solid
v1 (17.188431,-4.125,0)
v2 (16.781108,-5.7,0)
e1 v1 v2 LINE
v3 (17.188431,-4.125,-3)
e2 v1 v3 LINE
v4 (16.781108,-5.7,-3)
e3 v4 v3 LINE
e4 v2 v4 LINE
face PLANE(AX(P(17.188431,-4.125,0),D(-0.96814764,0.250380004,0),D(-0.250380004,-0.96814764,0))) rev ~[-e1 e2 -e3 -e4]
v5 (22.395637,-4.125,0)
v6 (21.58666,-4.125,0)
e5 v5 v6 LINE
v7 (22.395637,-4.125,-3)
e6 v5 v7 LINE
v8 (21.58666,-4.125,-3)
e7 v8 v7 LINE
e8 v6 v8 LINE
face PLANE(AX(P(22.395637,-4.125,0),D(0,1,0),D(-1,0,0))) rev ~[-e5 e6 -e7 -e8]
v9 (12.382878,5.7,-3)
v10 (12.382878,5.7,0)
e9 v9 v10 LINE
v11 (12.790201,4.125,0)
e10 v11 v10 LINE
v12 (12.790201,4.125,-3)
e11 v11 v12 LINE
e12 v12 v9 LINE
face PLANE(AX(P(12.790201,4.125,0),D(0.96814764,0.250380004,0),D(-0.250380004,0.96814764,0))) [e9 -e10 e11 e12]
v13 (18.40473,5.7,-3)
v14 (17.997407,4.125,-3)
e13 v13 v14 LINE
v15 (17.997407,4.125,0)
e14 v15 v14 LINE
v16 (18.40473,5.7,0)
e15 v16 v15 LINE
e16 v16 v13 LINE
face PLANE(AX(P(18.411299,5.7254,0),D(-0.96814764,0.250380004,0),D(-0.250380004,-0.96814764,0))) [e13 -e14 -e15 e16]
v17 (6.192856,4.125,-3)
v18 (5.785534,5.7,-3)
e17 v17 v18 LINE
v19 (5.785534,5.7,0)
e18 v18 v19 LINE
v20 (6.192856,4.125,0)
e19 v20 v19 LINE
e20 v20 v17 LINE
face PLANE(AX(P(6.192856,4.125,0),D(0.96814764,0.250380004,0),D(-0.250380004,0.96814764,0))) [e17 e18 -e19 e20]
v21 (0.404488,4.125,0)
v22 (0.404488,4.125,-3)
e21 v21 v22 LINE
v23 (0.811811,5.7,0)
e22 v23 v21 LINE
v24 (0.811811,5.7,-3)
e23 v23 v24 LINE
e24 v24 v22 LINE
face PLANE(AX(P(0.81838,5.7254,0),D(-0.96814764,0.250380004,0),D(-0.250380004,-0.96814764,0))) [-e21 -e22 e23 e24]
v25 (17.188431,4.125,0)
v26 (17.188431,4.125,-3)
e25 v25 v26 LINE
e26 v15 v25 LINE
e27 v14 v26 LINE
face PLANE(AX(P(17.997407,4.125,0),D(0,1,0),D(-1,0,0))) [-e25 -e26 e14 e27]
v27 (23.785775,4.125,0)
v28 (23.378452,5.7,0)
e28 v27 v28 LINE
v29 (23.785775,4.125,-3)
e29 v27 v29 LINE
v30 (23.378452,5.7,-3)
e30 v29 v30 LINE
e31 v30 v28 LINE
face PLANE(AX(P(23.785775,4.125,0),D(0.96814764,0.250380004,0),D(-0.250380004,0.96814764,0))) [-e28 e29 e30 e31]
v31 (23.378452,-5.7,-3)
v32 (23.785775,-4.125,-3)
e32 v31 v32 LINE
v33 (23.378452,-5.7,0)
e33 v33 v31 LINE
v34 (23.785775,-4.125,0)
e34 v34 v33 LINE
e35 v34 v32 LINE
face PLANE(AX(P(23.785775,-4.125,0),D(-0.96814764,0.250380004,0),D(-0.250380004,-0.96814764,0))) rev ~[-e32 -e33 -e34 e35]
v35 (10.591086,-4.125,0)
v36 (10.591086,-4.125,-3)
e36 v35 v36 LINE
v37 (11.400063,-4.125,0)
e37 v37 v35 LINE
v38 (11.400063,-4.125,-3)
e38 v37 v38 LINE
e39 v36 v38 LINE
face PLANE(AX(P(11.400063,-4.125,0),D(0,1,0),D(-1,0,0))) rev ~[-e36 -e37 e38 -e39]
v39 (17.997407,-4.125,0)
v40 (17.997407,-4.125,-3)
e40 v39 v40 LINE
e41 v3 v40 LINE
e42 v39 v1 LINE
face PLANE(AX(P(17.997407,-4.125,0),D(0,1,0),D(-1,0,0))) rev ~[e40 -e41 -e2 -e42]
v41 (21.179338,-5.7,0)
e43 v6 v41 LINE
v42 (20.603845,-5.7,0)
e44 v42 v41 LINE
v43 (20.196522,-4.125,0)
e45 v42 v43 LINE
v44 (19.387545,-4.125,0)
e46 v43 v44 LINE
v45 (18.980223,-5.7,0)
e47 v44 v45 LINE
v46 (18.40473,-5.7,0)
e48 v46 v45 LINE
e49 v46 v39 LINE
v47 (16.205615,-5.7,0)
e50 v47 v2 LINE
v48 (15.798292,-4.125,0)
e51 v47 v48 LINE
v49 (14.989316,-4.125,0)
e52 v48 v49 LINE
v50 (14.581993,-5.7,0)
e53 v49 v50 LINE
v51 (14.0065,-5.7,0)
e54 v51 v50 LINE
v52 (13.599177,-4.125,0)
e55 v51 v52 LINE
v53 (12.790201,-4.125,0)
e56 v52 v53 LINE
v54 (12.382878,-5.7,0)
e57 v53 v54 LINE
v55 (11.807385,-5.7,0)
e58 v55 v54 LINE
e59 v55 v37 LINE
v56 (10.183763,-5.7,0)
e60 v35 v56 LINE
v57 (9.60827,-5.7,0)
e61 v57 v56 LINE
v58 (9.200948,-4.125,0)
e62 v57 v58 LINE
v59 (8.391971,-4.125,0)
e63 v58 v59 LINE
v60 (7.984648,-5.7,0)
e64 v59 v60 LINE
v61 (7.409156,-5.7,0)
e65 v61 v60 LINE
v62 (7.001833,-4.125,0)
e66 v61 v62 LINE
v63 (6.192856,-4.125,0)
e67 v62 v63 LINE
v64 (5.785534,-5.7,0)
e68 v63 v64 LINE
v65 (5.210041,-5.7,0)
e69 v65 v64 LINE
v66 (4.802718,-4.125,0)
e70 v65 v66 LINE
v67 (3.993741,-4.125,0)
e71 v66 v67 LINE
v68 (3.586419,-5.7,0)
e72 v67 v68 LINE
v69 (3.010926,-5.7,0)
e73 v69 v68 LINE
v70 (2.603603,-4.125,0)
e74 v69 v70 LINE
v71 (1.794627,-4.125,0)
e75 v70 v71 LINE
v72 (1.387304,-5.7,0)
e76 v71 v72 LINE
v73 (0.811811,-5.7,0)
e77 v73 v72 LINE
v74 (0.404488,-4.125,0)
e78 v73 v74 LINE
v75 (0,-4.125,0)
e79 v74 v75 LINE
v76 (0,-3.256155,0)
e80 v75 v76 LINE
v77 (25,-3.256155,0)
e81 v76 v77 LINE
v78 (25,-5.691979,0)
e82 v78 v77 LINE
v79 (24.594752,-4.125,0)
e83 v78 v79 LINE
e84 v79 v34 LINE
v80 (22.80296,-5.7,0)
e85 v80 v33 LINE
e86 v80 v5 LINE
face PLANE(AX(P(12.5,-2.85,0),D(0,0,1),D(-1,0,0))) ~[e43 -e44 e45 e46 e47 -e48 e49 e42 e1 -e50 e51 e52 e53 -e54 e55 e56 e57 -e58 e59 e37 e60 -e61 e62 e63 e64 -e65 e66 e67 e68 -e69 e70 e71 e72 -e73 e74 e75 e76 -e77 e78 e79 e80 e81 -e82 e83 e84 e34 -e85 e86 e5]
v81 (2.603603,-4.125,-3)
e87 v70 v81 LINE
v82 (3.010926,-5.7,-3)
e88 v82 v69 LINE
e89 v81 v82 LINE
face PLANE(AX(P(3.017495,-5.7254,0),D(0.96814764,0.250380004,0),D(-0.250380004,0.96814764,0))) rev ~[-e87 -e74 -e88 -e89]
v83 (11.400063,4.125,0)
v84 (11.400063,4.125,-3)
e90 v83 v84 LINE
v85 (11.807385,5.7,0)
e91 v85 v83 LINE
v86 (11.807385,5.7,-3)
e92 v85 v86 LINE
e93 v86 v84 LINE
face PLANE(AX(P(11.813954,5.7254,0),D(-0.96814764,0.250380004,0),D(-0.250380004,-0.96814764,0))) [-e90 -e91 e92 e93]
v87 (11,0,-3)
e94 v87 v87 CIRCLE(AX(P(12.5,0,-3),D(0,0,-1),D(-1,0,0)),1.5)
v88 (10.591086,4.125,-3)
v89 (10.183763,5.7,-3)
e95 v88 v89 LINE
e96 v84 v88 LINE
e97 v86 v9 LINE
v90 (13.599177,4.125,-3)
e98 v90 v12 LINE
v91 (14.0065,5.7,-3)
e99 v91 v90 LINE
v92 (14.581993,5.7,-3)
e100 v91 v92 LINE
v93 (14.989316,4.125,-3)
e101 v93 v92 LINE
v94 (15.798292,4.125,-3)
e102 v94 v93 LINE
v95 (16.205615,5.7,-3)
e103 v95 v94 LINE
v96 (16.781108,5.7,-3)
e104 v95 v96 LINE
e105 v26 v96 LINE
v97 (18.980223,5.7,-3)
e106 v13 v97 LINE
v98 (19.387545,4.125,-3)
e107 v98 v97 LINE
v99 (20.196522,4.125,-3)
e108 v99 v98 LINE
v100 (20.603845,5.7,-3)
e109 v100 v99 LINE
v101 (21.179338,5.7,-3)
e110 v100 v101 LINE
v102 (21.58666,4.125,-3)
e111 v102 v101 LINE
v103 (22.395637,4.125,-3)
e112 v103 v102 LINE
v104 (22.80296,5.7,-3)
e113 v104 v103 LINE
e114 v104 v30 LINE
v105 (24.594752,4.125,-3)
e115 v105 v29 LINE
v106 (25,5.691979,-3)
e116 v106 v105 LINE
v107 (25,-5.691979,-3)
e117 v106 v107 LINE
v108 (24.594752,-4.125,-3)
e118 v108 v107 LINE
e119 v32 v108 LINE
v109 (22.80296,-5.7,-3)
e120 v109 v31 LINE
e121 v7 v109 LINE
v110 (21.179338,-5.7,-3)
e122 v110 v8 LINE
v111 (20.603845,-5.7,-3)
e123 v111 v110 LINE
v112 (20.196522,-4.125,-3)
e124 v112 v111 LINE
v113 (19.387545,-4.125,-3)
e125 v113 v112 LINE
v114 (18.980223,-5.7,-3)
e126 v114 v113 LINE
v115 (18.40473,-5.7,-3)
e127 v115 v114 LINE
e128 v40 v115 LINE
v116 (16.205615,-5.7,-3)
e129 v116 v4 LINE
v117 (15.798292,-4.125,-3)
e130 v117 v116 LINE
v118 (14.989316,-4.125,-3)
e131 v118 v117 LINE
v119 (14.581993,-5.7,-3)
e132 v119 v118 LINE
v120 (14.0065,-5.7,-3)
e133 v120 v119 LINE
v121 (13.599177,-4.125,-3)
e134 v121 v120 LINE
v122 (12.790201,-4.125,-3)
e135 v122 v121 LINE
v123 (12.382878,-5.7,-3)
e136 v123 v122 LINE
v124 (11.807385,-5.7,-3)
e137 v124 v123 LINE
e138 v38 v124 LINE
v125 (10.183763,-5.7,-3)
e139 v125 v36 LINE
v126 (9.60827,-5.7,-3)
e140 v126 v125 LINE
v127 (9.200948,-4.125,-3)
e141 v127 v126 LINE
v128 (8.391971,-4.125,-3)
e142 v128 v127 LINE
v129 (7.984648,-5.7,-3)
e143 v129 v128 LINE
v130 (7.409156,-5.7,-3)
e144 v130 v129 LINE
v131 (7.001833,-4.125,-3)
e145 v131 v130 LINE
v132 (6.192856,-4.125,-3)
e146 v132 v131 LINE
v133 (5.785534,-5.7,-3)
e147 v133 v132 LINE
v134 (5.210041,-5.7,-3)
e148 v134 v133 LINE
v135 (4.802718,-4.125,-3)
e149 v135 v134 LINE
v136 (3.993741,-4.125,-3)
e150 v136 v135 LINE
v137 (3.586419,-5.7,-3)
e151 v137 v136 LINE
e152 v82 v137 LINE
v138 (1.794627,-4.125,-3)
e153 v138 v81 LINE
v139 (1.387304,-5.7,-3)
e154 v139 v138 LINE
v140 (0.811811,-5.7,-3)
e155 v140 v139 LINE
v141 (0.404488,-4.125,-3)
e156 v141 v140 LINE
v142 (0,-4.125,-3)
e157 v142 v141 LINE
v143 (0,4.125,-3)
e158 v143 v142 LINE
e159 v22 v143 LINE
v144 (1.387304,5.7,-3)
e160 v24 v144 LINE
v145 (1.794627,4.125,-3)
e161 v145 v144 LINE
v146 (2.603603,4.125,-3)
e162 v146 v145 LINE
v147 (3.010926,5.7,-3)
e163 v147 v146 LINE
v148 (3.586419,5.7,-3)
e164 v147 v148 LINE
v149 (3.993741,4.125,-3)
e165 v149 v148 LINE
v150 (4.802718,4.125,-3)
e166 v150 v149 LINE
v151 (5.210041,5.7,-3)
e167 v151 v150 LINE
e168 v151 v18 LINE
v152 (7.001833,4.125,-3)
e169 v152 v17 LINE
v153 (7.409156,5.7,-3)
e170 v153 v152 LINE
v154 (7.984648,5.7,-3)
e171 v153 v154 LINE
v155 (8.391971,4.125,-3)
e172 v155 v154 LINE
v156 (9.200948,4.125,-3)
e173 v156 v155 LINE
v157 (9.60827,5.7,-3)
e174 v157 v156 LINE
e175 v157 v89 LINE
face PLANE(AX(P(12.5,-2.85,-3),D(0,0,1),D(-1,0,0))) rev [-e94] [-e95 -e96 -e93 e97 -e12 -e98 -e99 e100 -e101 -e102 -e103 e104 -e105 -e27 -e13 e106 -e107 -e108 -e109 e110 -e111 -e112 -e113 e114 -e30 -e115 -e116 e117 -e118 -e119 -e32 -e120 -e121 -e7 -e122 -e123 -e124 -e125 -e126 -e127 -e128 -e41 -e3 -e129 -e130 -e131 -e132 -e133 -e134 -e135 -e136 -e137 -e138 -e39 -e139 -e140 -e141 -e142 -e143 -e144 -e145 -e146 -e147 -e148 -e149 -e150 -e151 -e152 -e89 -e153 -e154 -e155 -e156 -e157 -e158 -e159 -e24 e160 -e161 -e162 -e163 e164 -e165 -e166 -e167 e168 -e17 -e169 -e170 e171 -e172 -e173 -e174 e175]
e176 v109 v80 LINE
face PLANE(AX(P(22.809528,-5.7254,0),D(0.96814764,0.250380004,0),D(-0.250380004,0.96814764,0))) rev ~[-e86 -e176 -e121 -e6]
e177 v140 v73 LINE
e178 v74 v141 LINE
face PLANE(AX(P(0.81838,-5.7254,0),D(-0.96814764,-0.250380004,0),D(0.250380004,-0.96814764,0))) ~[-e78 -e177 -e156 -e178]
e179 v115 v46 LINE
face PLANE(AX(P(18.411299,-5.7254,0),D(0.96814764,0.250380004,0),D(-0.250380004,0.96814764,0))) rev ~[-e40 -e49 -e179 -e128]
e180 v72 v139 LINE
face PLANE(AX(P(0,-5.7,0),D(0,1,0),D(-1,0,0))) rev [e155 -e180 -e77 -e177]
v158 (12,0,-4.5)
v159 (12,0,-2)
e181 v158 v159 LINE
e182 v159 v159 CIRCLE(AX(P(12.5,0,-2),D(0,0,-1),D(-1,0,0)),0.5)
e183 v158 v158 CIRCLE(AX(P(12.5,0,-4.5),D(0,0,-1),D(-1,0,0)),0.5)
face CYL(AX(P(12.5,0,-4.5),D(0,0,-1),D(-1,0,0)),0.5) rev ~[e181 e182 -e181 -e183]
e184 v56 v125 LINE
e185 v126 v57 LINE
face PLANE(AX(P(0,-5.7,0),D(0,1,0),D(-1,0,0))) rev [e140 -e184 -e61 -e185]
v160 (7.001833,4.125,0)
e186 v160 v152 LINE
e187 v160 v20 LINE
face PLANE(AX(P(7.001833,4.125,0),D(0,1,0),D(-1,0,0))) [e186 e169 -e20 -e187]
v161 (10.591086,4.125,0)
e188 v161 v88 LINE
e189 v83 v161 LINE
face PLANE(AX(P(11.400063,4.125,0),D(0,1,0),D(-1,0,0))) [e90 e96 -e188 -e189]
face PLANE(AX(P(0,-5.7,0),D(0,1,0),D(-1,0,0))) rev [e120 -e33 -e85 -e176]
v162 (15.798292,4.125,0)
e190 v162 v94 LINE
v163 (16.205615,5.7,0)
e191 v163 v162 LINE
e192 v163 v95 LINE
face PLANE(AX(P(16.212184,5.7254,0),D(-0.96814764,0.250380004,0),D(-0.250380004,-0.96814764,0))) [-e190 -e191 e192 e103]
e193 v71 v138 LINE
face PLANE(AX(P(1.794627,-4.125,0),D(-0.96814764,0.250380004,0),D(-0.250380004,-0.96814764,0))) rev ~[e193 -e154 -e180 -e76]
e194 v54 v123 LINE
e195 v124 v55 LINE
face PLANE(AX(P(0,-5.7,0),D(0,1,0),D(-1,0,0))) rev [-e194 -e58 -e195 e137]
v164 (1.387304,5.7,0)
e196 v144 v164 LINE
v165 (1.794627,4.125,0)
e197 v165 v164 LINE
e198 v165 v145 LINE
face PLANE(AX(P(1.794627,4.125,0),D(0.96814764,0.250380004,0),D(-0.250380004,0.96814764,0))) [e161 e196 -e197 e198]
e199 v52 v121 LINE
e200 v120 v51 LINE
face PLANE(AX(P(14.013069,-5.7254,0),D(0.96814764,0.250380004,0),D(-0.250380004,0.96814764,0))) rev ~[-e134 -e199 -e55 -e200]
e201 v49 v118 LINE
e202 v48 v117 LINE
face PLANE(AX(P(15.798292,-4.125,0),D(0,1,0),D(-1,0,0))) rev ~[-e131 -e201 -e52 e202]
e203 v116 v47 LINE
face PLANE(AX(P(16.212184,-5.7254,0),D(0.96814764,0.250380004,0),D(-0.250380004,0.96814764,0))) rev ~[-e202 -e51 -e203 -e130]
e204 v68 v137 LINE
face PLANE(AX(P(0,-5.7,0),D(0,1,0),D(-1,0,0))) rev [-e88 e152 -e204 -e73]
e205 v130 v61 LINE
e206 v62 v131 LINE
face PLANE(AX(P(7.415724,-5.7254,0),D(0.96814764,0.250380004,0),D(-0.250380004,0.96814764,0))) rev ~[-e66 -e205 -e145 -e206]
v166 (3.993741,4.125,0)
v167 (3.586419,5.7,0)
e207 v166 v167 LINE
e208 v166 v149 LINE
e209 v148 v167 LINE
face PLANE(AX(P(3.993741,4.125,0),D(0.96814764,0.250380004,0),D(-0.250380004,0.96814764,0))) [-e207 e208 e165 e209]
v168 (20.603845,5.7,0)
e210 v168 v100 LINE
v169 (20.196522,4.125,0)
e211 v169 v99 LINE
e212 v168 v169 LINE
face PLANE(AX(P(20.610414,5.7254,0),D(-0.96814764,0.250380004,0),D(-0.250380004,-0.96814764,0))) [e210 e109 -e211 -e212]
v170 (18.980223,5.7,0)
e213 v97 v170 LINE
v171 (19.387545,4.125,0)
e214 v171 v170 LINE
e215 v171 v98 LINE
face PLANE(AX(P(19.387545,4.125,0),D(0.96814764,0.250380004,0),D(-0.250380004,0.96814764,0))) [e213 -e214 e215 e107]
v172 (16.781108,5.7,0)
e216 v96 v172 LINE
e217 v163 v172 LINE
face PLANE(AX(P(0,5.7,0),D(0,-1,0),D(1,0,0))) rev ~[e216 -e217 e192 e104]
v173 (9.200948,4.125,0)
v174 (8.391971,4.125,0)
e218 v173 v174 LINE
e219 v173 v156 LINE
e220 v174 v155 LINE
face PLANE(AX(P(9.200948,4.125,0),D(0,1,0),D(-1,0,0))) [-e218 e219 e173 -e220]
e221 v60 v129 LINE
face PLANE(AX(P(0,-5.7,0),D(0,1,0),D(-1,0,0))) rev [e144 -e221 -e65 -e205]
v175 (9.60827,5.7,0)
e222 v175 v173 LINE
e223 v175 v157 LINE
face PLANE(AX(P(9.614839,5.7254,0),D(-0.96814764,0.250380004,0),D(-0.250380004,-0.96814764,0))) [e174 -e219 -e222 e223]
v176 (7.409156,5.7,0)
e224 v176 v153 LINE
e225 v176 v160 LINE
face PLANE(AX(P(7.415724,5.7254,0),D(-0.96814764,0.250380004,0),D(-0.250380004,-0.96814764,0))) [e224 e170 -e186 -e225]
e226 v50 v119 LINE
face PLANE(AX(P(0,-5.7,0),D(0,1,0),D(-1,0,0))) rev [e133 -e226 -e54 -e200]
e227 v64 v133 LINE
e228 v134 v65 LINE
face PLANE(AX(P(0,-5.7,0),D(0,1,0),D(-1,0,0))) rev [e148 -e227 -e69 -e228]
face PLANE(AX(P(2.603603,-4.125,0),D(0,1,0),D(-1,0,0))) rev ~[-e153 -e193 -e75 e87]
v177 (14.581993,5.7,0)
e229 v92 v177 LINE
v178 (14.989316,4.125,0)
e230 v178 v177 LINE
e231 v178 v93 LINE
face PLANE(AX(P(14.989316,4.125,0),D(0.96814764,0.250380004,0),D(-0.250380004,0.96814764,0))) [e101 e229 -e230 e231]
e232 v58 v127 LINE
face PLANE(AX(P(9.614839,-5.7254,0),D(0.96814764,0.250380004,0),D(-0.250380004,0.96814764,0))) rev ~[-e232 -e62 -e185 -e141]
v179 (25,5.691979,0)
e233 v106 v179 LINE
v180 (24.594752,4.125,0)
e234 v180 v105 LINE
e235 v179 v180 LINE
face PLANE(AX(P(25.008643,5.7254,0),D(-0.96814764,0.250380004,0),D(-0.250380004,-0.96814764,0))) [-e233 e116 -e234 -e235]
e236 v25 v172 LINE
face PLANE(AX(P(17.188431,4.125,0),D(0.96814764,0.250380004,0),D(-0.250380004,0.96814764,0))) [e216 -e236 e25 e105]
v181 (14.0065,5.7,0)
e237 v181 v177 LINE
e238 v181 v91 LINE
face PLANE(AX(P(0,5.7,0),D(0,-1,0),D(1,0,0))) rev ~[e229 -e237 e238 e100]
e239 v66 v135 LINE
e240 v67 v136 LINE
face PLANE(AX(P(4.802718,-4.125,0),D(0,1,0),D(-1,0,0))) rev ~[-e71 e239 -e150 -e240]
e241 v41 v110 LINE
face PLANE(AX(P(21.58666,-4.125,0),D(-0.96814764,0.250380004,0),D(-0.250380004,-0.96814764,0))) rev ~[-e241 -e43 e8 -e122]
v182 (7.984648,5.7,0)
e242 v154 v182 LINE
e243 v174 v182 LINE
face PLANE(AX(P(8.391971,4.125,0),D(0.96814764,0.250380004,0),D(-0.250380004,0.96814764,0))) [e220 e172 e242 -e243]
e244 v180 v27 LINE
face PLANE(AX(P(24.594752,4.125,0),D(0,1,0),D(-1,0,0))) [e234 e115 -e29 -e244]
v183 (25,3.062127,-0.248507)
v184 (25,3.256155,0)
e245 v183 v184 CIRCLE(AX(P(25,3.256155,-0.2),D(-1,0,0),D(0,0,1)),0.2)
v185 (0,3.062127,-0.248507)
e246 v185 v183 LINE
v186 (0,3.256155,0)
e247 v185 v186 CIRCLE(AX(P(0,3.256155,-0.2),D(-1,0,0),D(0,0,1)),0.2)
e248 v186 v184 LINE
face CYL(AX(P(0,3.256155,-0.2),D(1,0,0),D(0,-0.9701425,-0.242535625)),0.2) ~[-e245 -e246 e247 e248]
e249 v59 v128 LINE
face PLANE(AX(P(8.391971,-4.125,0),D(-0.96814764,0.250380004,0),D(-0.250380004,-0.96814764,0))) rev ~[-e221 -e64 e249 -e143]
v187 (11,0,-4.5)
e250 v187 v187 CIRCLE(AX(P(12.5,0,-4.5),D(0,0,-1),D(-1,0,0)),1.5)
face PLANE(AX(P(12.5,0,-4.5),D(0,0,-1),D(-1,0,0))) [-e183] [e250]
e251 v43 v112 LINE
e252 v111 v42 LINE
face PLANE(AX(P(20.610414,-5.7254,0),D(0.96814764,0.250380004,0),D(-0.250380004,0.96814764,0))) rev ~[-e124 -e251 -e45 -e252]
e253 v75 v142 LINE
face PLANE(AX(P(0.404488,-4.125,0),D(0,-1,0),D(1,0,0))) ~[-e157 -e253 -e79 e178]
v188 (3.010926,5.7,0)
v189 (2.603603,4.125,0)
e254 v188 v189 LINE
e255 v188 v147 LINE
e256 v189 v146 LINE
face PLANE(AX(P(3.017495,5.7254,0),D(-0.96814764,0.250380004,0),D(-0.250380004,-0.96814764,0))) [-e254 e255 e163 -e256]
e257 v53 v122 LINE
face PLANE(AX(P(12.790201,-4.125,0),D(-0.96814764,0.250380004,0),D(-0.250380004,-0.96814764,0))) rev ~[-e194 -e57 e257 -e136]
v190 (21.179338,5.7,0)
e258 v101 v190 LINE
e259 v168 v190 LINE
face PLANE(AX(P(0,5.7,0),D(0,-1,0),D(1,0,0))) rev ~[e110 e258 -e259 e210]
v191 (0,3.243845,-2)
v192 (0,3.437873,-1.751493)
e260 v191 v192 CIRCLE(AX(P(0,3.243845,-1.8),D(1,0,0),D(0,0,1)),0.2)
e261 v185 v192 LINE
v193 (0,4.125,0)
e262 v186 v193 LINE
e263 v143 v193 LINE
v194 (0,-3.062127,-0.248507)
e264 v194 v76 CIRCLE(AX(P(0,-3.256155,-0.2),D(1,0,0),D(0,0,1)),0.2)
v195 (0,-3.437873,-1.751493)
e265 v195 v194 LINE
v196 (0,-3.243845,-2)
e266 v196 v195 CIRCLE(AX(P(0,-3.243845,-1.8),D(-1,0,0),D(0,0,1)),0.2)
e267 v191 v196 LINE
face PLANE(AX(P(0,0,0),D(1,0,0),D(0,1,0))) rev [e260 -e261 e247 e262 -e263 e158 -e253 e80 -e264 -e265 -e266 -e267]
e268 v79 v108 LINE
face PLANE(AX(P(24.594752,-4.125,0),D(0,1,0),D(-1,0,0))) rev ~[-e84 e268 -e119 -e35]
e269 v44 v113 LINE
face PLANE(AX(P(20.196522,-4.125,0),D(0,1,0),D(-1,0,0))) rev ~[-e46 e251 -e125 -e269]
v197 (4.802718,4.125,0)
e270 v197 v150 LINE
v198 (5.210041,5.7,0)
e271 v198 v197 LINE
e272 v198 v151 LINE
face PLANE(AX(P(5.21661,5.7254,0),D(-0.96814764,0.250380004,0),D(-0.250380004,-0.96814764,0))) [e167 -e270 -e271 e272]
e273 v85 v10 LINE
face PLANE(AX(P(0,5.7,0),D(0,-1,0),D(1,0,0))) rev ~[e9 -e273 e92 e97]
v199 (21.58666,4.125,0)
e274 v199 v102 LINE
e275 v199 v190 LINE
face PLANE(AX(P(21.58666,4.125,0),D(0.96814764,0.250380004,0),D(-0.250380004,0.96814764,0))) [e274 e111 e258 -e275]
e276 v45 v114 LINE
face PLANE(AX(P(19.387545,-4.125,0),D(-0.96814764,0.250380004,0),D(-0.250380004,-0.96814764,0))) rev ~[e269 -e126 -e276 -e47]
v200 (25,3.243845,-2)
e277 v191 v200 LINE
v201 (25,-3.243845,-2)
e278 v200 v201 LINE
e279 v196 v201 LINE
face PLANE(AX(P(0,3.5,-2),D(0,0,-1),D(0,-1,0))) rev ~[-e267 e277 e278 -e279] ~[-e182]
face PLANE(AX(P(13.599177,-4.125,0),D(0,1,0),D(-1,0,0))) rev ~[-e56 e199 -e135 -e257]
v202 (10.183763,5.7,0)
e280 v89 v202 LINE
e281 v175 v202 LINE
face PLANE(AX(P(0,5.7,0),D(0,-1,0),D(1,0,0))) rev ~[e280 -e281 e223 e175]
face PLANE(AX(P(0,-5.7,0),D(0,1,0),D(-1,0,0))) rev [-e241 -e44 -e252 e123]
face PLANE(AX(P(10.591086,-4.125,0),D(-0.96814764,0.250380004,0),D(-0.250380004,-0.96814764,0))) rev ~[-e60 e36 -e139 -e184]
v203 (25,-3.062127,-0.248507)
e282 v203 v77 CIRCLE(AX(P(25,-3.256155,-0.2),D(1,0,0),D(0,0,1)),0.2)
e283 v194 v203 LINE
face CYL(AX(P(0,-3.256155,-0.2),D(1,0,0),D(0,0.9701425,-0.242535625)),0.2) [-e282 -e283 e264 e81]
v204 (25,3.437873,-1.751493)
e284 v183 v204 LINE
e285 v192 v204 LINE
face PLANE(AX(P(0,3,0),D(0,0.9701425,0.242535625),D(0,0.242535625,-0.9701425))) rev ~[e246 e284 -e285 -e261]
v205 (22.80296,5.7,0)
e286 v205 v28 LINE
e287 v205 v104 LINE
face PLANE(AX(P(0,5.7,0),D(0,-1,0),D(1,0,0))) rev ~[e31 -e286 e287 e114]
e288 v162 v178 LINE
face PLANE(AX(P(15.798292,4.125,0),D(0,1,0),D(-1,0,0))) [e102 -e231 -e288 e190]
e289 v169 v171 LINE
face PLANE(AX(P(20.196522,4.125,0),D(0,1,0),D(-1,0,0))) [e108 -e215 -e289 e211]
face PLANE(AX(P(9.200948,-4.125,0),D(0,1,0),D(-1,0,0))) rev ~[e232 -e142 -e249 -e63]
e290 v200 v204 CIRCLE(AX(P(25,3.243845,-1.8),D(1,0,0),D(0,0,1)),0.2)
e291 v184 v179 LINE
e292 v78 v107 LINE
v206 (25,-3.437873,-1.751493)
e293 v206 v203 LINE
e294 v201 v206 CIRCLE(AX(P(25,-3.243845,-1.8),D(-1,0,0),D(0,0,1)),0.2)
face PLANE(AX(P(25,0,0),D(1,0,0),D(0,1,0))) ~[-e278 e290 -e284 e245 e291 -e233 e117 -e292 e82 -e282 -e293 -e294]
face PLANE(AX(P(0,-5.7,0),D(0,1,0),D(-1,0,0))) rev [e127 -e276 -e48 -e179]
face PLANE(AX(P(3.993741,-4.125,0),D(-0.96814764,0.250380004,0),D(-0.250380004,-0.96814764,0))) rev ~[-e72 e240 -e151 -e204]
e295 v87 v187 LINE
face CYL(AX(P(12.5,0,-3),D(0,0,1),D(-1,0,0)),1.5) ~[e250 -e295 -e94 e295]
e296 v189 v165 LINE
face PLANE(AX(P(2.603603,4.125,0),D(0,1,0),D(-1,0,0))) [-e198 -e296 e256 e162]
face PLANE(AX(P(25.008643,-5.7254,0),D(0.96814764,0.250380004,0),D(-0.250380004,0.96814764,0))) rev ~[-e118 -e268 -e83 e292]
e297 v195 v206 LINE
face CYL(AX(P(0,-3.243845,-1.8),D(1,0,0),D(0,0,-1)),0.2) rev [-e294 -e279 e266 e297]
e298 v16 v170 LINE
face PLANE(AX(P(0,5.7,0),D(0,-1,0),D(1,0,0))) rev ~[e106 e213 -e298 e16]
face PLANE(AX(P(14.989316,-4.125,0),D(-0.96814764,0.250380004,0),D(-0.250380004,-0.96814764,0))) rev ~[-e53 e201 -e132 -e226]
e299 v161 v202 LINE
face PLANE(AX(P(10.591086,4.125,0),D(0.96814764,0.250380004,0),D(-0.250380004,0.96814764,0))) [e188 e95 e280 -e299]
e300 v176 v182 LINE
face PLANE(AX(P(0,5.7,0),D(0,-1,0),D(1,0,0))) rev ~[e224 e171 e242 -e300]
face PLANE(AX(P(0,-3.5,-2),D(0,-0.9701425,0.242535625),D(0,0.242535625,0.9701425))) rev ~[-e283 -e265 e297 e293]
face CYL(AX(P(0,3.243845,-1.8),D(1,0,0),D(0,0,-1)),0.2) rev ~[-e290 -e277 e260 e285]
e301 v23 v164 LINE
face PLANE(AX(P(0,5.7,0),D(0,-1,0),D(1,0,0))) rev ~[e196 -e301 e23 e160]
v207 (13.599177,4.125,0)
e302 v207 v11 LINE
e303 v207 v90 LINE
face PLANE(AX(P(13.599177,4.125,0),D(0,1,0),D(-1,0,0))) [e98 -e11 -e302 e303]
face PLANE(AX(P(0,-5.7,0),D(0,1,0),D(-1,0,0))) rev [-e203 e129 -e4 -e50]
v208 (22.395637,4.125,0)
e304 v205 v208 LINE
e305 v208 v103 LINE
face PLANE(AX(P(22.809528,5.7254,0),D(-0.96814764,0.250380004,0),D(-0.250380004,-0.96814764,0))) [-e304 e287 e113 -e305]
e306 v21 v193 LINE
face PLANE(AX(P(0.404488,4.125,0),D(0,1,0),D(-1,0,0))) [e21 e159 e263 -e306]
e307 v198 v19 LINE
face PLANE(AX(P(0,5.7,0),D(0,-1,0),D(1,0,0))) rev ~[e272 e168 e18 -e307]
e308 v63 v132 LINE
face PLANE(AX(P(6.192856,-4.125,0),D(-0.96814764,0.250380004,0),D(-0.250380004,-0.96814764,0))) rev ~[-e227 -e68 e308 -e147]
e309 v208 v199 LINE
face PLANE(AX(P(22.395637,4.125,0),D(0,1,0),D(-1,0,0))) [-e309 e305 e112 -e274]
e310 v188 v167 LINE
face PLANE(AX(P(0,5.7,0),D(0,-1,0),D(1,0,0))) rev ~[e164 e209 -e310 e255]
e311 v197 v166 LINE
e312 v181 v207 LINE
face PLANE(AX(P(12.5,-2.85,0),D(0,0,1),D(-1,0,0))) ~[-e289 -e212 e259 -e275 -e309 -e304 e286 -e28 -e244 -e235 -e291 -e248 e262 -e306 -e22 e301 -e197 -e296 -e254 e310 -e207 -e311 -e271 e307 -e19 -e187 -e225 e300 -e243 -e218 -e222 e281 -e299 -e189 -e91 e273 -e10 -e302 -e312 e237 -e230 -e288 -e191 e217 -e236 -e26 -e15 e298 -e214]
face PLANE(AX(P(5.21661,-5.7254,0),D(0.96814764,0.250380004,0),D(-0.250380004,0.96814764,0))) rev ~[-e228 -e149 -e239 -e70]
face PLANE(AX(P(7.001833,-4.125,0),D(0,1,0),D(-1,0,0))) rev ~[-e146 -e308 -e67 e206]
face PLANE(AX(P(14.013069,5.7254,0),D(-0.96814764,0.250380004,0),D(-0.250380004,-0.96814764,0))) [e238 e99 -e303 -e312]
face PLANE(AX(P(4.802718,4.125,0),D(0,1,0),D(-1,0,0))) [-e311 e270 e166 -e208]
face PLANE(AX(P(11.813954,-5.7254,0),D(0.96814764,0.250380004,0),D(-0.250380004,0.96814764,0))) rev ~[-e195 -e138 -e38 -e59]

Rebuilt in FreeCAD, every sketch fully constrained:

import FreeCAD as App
import Part
import Sketcher
from FreeCAD import Vector
Q = App.Units.Quantity


def edges_at(feature, points):
    """Names of the edges that pass closest to the given points."""
    edges = feature.Shape.Edges
    near = lambda p: min(range(len(edges)), key=lambda i: edges[i].distToShape(Part.Vertex(*p))[0])
    return sorted({f"Edge{near(p) + 1}" for p in points})

doc = App.newDocument("Part")
params = doc.addObject("Spreadsheet::Sheet", "Params")
for row, (alias, value) in enumerate([
    ("sketch1_width", "25 mm"),
    ("sketch1_height", "5.7 mm"),
    ("pad1_length", "3 mm"),
    ("linearpattern_pitch", "2.199115 mm"),
    ("sketch14_width", "6 mm"),
    ("sketch14_width2", "7 mm"),
    ("fillet_radius", "0.2 mm"),
    ("fillet2_radius", "0.2 mm"),
    ("fillet3_radius", "0.2 mm"),
    ("sketch15_diameter", "3 mm"),
    ("pad2_length", "1.5 mm"),
    ("sketch16_diameter", "1 mm"),
], start=1):
    params.set(f"A{row}", alias)
    params.set(f"B{row}", "=" + value)
    params.setAlias(f"B{row}", alias)

body = doc.addObject("PartDesign::Body", "Body")

# Sketch on XY plane
sketch1 = body.newObject("Sketcher::SketchObject", "Sketch")
sketch1.AttachmentSupport = (doc.getObject("XY_Plane"), [""])
sketch1.MapMode = "FlatFace"
sketch1.addGeometry([
    Part.LineSegment(Vector(0, 5.7, 0), Vector(0, 0, 0)),
    Part.LineSegment(Vector(0, 0, 0), Vector(25, 0, 0)),
    Part.LineSegment(Vector(25, 0, 0), Vector(25, 5.7, 0)),
    Part.LineSegment(Vector(25, 5.7, 0), Vector(0, 5.7, 0)),
], False)
sketch1.addConstraint([
    Sketcher.Constraint("Coincident", 0, 2, 1, 1),
    Sketcher.Constraint("Coincident", 1, 2, 2, 1),
    Sketcher.Constraint("Coincident", 2, 2, 3, 1),
    Sketcher.Constraint("Coincident", 3, 2, 0, 1),
    Sketcher.Constraint("Vertical", 0),
    Sketcher.Constraint("Horizontal", 1),
    Sketcher.Constraint("Vertical", 2),
    Sketcher.Constraint("Horizontal", 3),
    Sketcher.Constraint("Coincident", 0, 2, -1, 1),
    Sketcher.Constraint("DistanceX", 1, 1, 1, 2, Q("25 mm")),
    Sketcher.Constraint("DistanceY", 0, 2, 0, 1, Q("5.7 mm")),
])
sketch1.setExpression("Constraints[9]", "Params.sketch1_width")
sketch1.setExpression("Constraints[10]", "Params.sketch1_height")
pad1 = body.newObject("PartDesign::Pad", "Pad")
pad1.Profile = sketch1
pad1.setExpression("Length", "Params.pad1_length")
pad1.Reversed = True

# Sketch on XY plane
sketch2 = body.newObject("Sketcher::SketchObject", "Sketch001")
sketch2.AttachmentSupport = (doc.getObject("XY_Plane"), [""])
sketch2.MapMode = "FlatFace"
sketch2.addGeometry([
    Part.LineSegment(Vector(-0.404488, 4.125, 0), Vector(0.404488, 4.125, 0)),
    Part.LineSegment(Vector(0.404488, 4.125, 0), Vector(0.81838, 5.7254, 0)),
    Part.LineSegment(Vector(0.81838, 5.7254, 0), Vector(-0.81838, 5.7254, 0)),
    Part.LineSegment(Vector(-0.81838, 5.7254, 0), Vector(-0.404488, 4.125, 0)),
], False)
sketch2.addConstraint([
    Sketcher.Constraint("Coincident", 0, 2, 1, 1),
    Sketcher.Constraint("Coincident", 1, 2, 2, 1),
    Sketcher.Constraint("Coincident", 2, 2, 3, 1),
    Sketcher.Constraint("Coincident", 3, 2, 0, 1),
    Sketcher.Constraint("Horizontal", 0),
    Sketcher.Constraint("Horizontal", 2),
    Sketcher.Constraint("Equal", 1, 3),
    Sketcher.Constraint("Angle", 1, Q("75.5 deg")),
    Sketcher.Constraint("DistanceY", -1, 1, 0, 2, Q("4.125 mm")),
    Sketcher.Constraint("DistanceX", 2, 2, 2, 1, Q("1.63676 mm")),
    Sketcher.Constraint("DistanceY", -1, 1, 1, 2, Q("5.7254 mm")),
    Sketcher.Constraint("DistanceX", -1, 1, 0, 2, Q("0.404488 mm")),
])
pocket1 = body.newObject("PartDesign::Pocket", "Pocket")
pocket1.Profile = sketch2
pocket1.Type = "ThroughAll"
doc.recompute()

linearpattern = body.newObject("PartDesign::LinearPattern", "LinearPattern")
linearpattern.Originals = [pocket1]
linearpattern.Direction = (doc.getObject("X_Axis"), [""])
linearpattern.Mode = "offset"
linearpattern.setExpression("Offset", "Params.linearpattern_pitch")
linearpattern.Occurrences = 12
body.Tip = linearpattern
doc.recompute()

mirrored = body.newObject("PartDesign::Mirrored", "Mirrored")
mirrored.Originals = [pad1, pocket1]
mirrored.MirrorPlane = (doc.getObject("XZ_Plane"), [""])
body.Tip = mirrored

# Sketch on XY plane
sketch3 = body.newObject("Sketcher::SketchObject", "Sketch002")
sketch3.AttachmentSupport = (doc.getObject("XY_Plane"), [""])
sketch3.MapMode = "FlatFace"
sketch3.addGeometry([
    Part.LineSegment(Vector(2.603603, -4.125, 0), Vector(1.794627, -4.125, 0)),
    Part.LineSegment(Vector(1.794627, -4.125, 0), Vector(1.380735, -5.7254, 0)),
    Part.LineSegment(Vector(1.380735, -5.7254, 0), Vector(3.017495, -5.7254, 0)),
    Part.LineSegment(Vector(3.017495, -5.7254, 0), Vector(2.603603, -4.125, 0)),
], False)
sketch3.addConstraint([
    Sketcher.Constraint("Coincident", 0, 2, 1, 1),
    Sketcher.Constraint("Coincident", 1, 2, 2, 1),
    Sketcher.Constraint("Coincident", 2, 2, 3, 1),
    Sketcher.Constraint("Coincident", 3, 2, 0, 1),
    Sketcher.Constraint("Horizontal", 0),
    Sketcher.Constraint("Horizontal", 2),
    Sketcher.Constraint("Equal", 1, 3),
    Sketcher.Constraint("Angle", 1, Q("-104.5 deg")),
    Sketcher.Constraint("DistanceY", 0, 2, -1, 1, Q("4.125 mm")),
    Sketcher.Constraint("DistanceX", 2, 1, 2, 2, Q("1.63676 mm")),
    Sketcher.Constraint("DistanceY", 1, 2, -1, 1, Q("5.7254 mm")),
    Sketcher.Constraint("DistanceX", -1, 1, 0, 2, Q("1.794627 mm")),
])
pocket2 = body.newObject("PartDesign::Pocket", "Pocket001")
pocket2.Profile = sketch3
pocket2.Type = "ThroughAll"

# Sketch on XY plane
sketch4 = body.newObject("Sketcher::SketchObject", "Sketch003")
sketch4.AttachmentSupport = (doc.getObject("XY_Plane"), [""])
sketch4.MapMode = "FlatFace"
sketch4.addGeometry([
    Part.LineSegment(Vector(4.802718, -4.125, 0), Vector(3.993741, -4.125, 0)),
    Part.LineSegment(Vector(3.993741, -4.125, 0), Vector(3.57985, -5.7254, 0)),
    Part.LineSegment(Vector(3.57985, -5.7254, 0), Vector(5.21661, -5.7254, 0)),
    Part.LineSegment(Vector(5.21661, -5.7254, 0), Vector(4.802718, -4.125, 0)),
], False)
sketch4.addConstraint([
    Sketcher.Constraint("Coincident", 0, 2, 1, 1),
    Sketcher.Constraint("Coincident", 1, 2, 2, 1),
    Sketcher.Constraint("Coincident", 2, 2, 3, 1),
    Sketcher.Constraint("Coincident", 3, 2, 0, 1),
    Sketcher.Constraint("Horizontal", 0),
    Sketcher.Constraint("Horizontal", 2),
    Sketcher.Constraint("Equal", 1, 3),
    Sketcher.Constraint("Angle", 1, Q("-104.5 deg")),
    Sketcher.Constraint("DistanceY", 0, 2, -1, 1, Q("4.125 mm")),
    Sketcher.Constraint("DistanceX", 2, 1, 2, 2, Q("1.63676 mm")),
    Sketcher.Constraint("DistanceY", 1, 2, -1, 1, Q("5.7254 mm")),
    Sketcher.Constraint("DistanceX", -1, 1, 0, 2, Q("3.993741 mm")),
])
pocket3 = body.newObject("PartDesign::Pocket", "Pocket002")
pocket3.Profile = sketch4
pocket3.Type = "ThroughAll"

# Sketch on XY plane
sketch5 = body.newObject("Sketcher::SketchObject", "Sketch004")
sketch5.AttachmentSupport = (doc.getObject("XY_Plane"), [""])
sketch5.MapMode = "FlatFace"
sketch5.addGeometry([
    Part.LineSegment(Vector(7.001833, -4.125, 0), Vector(6.192856, -4.125, 0)),
    Part.LineSegment(Vector(6.192856, -4.125, 0), Vector(5.778965, -5.7254, 0)),
    Part.LineSegment(Vector(5.778965, -5.7254, 0), Vector(7.415724, -5.7254, 0)),
    Part.LineSegment(Vector(7.415724, -5.7254, 0), Vector(7.001833, -4.125, 0)),
], False)
sketch5.addConstraint([
    Sketcher.Constraint("Coincident", 0, 2, 1, 1),
    Sketcher.Constraint("Coincident", 1, 2, 2, 1),
    Sketcher.Constraint("Coincident", 2, 2, 3, 1),
    Sketcher.Constraint("Coincident", 3, 2, 0, 1),
    Sketcher.Constraint("Horizontal", 0),
    Sketcher.Constraint("Horizontal", 2),
    Sketcher.Constraint("Equal", 1, 3),
    Sketcher.Constraint("Angle", 1, Q("-104.5 deg")),
    Sketcher.Constraint("DistanceY", 0, 2, -1, 1, Q("4.125 mm")),
    Sketcher.Constraint("DistanceX", 2, 1, 2, 2, Q("1.63676 mm")),
    Sketcher.Constraint("DistanceY", 1, 2, -1, 1, Q("5.7254 mm")),
    Sketcher.Constraint("DistanceX", -1, 1, 0, 2, Q("6.192856 mm")),
])
pocket4 = body.newObject("PartDesign::Pocket", "Pocket003")
pocket4.Profile = sketch5
pocket4.Type = "ThroughAll"

# Sketch on XY plane
sketch6 = body.newObject("Sketcher::SketchObject", "Sketch005")
sketch6.AttachmentSupport = (doc.getObject("XY_Plane"), [""])
sketch6.MapMode = "FlatFace"
sketch6.addGeometry([
    Part.LineSegment(Vector(9.200948, -4.125, 0), Vector(8.391971, -4.125, 0)),
    Part.LineSegment(Vector(8.391971, -4.125, 0), Vector(7.97808, -5.7254, 0)),
    Part.LineSegment(Vector(7.97808, -5.7254, 0), Vector(9.614839, -5.7254, 0)),
    Part.LineSegment(Vector(9.614839, -5.7254, 0), Vector(9.200948, -4.125, 0)),
], False)
sketch6.addConstraint([
    Sketcher.Constraint("Coincident", 0, 2, 1, 1),
    Sketcher.Constraint("Coincident", 1, 2, 2, 1),
    Sketcher.Constraint("Coincident", 2, 2, 3, 1),
    Sketcher.Constraint("Coincident", 3, 2, 0, 1),
    Sketcher.Constraint("Horizontal", 0),
    Sketcher.Constraint("Horizontal", 2),
    Sketcher.Constraint("Equal", 1, 3),
    Sketcher.Constraint("Angle", 1, Q("-104.5 deg")),
    Sketcher.Constraint("DistanceY", 0, 2, -1, 1, Q("4.125 mm")),
    Sketcher.Constraint("DistanceX", 2, 1, 2, 2, Q("1.63676 mm")),
    Sketcher.Constraint("DistanceY", 1, 2, -1, 1, Q("5.7254 mm")),
    Sketcher.Constraint("DistanceX", -1, 1, 0, 2, Q("8.391971 mm")),
])
pocket5 = body.newObject("PartDesign::Pocket", "Pocket004")
pocket5.Profile = sketch6
pocket5.Type = "ThroughAll"

# Sketch on XY plane
sketch7 = body.newObject("Sketcher::SketchObject", "Sketch006")
sketch7.AttachmentSupport = (doc.getObject("XY_Plane"), [""])
sketch7.MapMode = "FlatFace"
sketch7.addGeometry([
    Part.LineSegment(Vector(11.400063, -4.125, 0), Vector(10.591086, -4.125, 0)),
    Part.LineSegment(Vector(10.591086, -4.125, 0), Vector(10.177194, -5.7254, 0)),
    Part.LineSegment(Vector(10.177194, -5.7254, 0), Vector(11.813954, -5.7254, 0)),
    Part.LineSegment(Vector(11.813954, -5.7254, 0), Vector(11.400063, -4.125, 0)),
], False)
sketch7.addConstraint([
    Sketcher.Constraint("Coincident", 0, 2, 1, 1),
    Sketcher.Constraint("Coincident", 1, 2, 2, 1),
    Sketcher.Constraint("Coincident", 2, 2, 3, 1),
    Sketcher.Constraint("Coincident", 3, 2, 0, 1),
    Sketcher.Constraint("Horizontal", 0),
    Sketcher.Constraint("Horizontal", 2),
    Sketcher.Constraint("Equal", 1, 3),
    Sketcher.Constraint("Angle", 1, Q("-104.5 deg")),
    Sketcher.Constraint("DistanceY", 0, 2, -1, 1, Q("4.125 mm")),
    Sketcher.Constraint("DistanceX", 2, 1, 2, 2, Q("1.63676 mm")),
    Sketcher.Constraint("DistanceY", 1, 2, -1, 1, Q("5.7254 mm")),
    Sketcher.Constraint("DistanceX", -1, 1, 0, 2, Q("10.591086 mm")),
])
pocket6 = body.newObject("PartDesign::Pocket", "Pocket005")
pocket6.Profile = sketch7
pocket6.Type = "ThroughAll"

# Sketch on XY plane
sketch8 = body.newObject("Sketcher::SketchObject", "Sketch007")
sketch8.AttachmentSupport = (doc.getObject("XY_Plane"), [""])
sketch8.MapMode = "FlatFace"
sketch8.addGeometry([
    Part.LineSegment(Vector(13.599177, -4.125, 0), Vector(12.790201, -4.125, 0)),
    Part.LineSegment(Vector(12.790201, -4.125, 0), Vector(12.376309, -5.7254, 0)),
    Part.LineSegment(Vector(12.376309, -5.7254, 0), Vector(14.013069, -5.7254, 0)),
    Part.LineSegment(Vector(14.013069, -5.7254, 0), Vector(13.599177, -4.125, 0)),
], False)
sketch8.addConstraint([
    Sketcher.Constraint("Coincident", 0, 2, 1, 1),
    Sketcher.Constraint("Coincident", 1, 2, 2, 1),
    Sketcher.Constraint("Coincident", 2, 2, 3, 1),
    Sketcher.Constraint("Coincident", 3, 2, 0, 1),
    Sketcher.Constraint("Horizontal", 0),
    Sketcher.Constraint("Horizontal", 2),
    Sketcher.Constraint("Equal", 1, 3),
    Sketcher.Constraint("Angle", 1, Q("-104.5 deg")),
    Sketcher.Constraint("DistanceY", 0, 2, -1, 1, Q("4.125 mm")),
    Sketcher.Constraint("DistanceX", 2, 1, 2, 2, Q("1.63676 mm")),
    Sketcher.Constraint("DistanceX", -1, 1, 0, 2, Q("12.790201 mm")),
    Sketcher.Constraint("DistanceY", 1, 2, -1, 1, Q("5.7254 mm")),
])
pocket7 = body.newObject("PartDesign::Pocket", "Pocket006")
pocket7.Profile = sketch8
pocket7.Type = "ThroughAll"

# Sketch on XY plane
sketch9 = body.newObject("Sketcher::SketchObject", "Sketch008")
sketch9.AttachmentSupport = (doc.getObject("XY_Plane"), [""])
sketch9.MapMode = "FlatFace"
sketch9.addGeometry([
    Part.LineSegment(Vector(15.798292, -4.125, 0), Vector(14.989316, -4.125, 0)),
    Part.LineSegment(Vector(14.989316, -4.125, 0), Vector(14.575424, -5.7254, 0)),
    Part.LineSegment(Vector(14.575424, -5.7254, 0), Vector(16.212184, -5.7254, 0)),
    Part.LineSegment(Vector(16.212184, -5.7254, 0), Vector(15.798292, -4.125, 0)),
], False)
sketch9.addConstraint([
    Sketcher.Constraint("Coincident", 0, 2, 1, 1),
    Sketcher.Constraint("Coincident", 1, 2, 2, 1),
    Sketcher.Constraint("Coincident", 2, 2, 3, 1),
    Sketcher.Constraint("Coincident", 3, 2, 0, 1),
    Sketcher.Constraint("Horizontal", 0),
    Sketcher.Constraint("Horizontal", 2),
    Sketcher.Constraint("Equal", 1, 3),
    Sketcher.Constraint("Angle", 1, Q("-104.5 deg")),
    Sketcher.Constraint("DistanceY", 0, 2, -1, 1, Q("4.125 mm")),
    Sketcher.Constraint("DistanceX", 2, 1, 2, 2, Q("1.63676 mm")),
    Sketcher.Constraint("DistanceY", 1, 2, -1, 1, Q("5.7254 mm")),
    Sketcher.Constraint("DistanceX", -1, 1, 0, 2, Q("14.989316 mm")),
])
pocket8 = body.newObject("PartDesign::Pocket", "Pocket007")
pocket8.Profile = sketch9
pocket8.Type = "ThroughAll"

# Sketch on XY plane
sketch10 = body.newObject("Sketcher::SketchObject", "Sketch009")
sketch10.AttachmentSupport = (doc.getObject("XY_Plane"), [""])
sketch10.MapMode = "FlatFace"
sketch10.addGeometry([
    Part.LineSegment(Vector(17.997407, -4.125, 0), Vector(17.188431, -4.125, 0)),
    Part.LineSegment(Vector(17.188431, -4.125, 0), Vector(16.774539, -5.7254, 0)),
    Part.LineSegment(Vector(16.774539, -5.7254, 0), Vector(18.411299, -5.7254, 0)),
    Part.LineSegment(Vector(18.411299, -5.7254, 0), Vector(17.997407, -4.125, 0)),
], False)
sketch10.addConstraint([
    Sketcher.Constraint("Coincident", 0, 2, 1, 1),
    Sketcher.Constraint("Coincident", 1, 2, 2, 1),
    Sketcher.Constraint("Coincident", 2, 2, 3, 1),
    Sketcher.Constraint("Coincident", 3, 2, 0, 1),
    Sketcher.Constraint("Horizontal", 0),
    Sketcher.Constraint("Horizontal", 2),
    Sketcher.Constraint("Equal", 1, 3),
    Sketcher.Constraint("Angle", 1, Q("-104.5 deg")),
    Sketcher.Constraint("DistanceY", 0, 2, -1, 1, Q("4.125 mm")),
    Sketcher.Constraint("DistanceX", 2, 1, 2, 2, Q("1.63676 mm")),
    Sketcher.Constraint("DistanceY", 1, 2, -1, 1, Q("5.7254 mm")),
    Sketcher.Constraint("DistanceX", -1, 1, 2, 2, Q("18.411299 mm")),
])
pocket9 = body.newObject("PartDesign::Pocket", "Pocket008")
pocket9.Profile = sketch10
pocket9.Type = "ThroughAll"

# Sketch on XY plane
sketch11 = body.newObject("Sketcher::SketchObject", "Sketch010")
sketch11.AttachmentSupport = (doc.getObject("XY_Plane"), [""])
sketch11.MapMode = "FlatFace"
sketch11.addGeometry([
    Part.LineSegment(Vector(20.196522, -4.125, 0), Vector(19.387545, -4.125, 0)),
    Part.LineSegment(Vector(19.387545, -4.125, 0), Vector(18.973654, -5.7254, 0)),
    Part.LineSegment(Vector(18.973654, -5.7254, 0), Vector(20.610414, -5.7254, 0)),
    Part.LineSegment(Vector(20.610414, -5.7254, 0), Vector(20.196522, -4.125, 0)),
], False)
sketch11.addConstraint([
    Sketcher.Constraint("Coincident", 0, 2, 1, 1),
    Sketcher.Constraint("Coincident", 1, 2, 2, 1),
    Sketcher.Constraint("Coincident", 2, 2, 3, 1),
    Sketcher.Constraint("Coincident", 3, 2, 0, 1),
    Sketcher.Constraint("Horizontal", 0),
    Sketcher.Constraint("Horizontal", 2),
    Sketcher.Constraint("Equal", 1, 3),
    Sketcher.Constraint("Angle", 1, Q("-104.5 deg")),
    Sketcher.Constraint("DistanceY", 0, 2, -1, 1, Q("4.125 mm")),
    Sketcher.Constraint("DistanceX", 2, 1, 2, 2, Q("1.63676 mm")),
    Sketcher.Constraint("DistanceY", 1, 2, -1, 1, Q("5.7254 mm")),
    Sketcher.Constraint("DistanceX", -1, 1, 0, 2, Q("19.387545 mm")),
])
pocket10 = body.newObject("PartDesign::Pocket", "Pocket009")
pocket10.Profile = sketch11
pocket10.Type = "ThroughAll"

# Sketch on XY plane
sketch12 = body.newObject("Sketcher::SketchObject", "Sketch011")
sketch12.AttachmentSupport = (doc.getObject("XY_Plane"), [""])
sketch12.MapMode = "FlatFace"
sketch12.addGeometry([
    Part.LineSegment(Vector(22.395637, -4.125, 0), Vector(21.58666, -4.125, 0)),
    Part.LineSegment(Vector(21.58666, -4.125, 0), Vector(21.172769, -5.7254, 0)),
    Part.LineSegment(Vector(21.172769, -5.7254, 0), Vector(22.809528, -5.7254, 0)),
    Part.LineSegment(Vector(22.809528, -5.7254, 0), Vector(22.395637, -4.125, 0)),
], False)
sketch12.addConstraint([
    Sketcher.Constraint("Coincident", 0, 2, 1, 1),
    Sketcher.Constraint("Coincident", 1, 2, 2, 1),
    Sketcher.Constraint("Coincident", 2, 2, 3, 1),
    Sketcher.Constraint("Coincident", 3, 2, 0, 1),
    Sketcher.Constraint("Horizontal", 0),
    Sketcher.Constraint("Horizontal", 2),
    Sketcher.Constraint("Equal", 1, 3),
    Sketcher.Constraint("Angle", 1, Q("-104.5 deg")),
    Sketcher.Constraint("DistanceY", 0, 2, -1, 1, Q("4.125 mm")),
    Sketcher.Constraint("DistanceX", 2, 1, 2, 2, Q("1.63676 mm")),
    Sketcher.Constraint("DistanceY", 1, 2, -1, 1, Q("5.7254 mm")),
    Sketcher.Constraint("DistanceX", -1, 1, 0, 2, Q("21.58666 mm")),
])
pocket11 = body.newObject("PartDesign::Pocket", "Pocket010")
pocket11.Profile = sketch12
pocket11.Type = "ThroughAll"

# Sketch on XY plane
sketch13 = body.newObject("Sketcher::SketchObject", "Sketch012")
sketch13.AttachmentSupport = (doc.getObject("XY_Plane"), [""])
sketch13.MapMode = "FlatFace"
sketch13.addGeometry([
    Part.LineSegment(Vector(24.594752, -4.125, 0), Vector(23.785775, -4.125, 0)),
    Part.LineSegment(Vector(23.785775, -4.125, 0), Vector(23.371883, -5.7254, 0)),
    Part.LineSegment(Vector(23.371883, -5.7254, 0), Vector(25.008643, -5.7254, 0)),
    Part.LineSegment(Vector(25.008643, -5.7254, 0), Vector(24.594752, -4.125, 0)),
], False)
sketch13.addConstraint([
    Sketcher.Constraint("Coincident", 0, 2, 1, 1),
    Sketcher.Constraint("Coincident", 1, 2, 2, 1),
    Sketcher.Constraint("Coincident", 2, 2, 3, 1),
    Sketcher.Constraint("Coincident", 3, 2, 0, 1),
    Sketcher.Constraint("Horizontal", 0),
    Sketcher.Constraint("Horizontal", 2),
    Sketcher.Constraint("Equal", 1, 3),
    Sketcher.Constraint("Angle", 1, Q("-104.5 deg")),
    Sketcher.Constraint("DistanceY", 0, 2, -1, 1, Q("4.125 mm")),
    Sketcher.Constraint("DistanceX", 2, 1, 2, 2, Q("1.63676 mm")),
    Sketcher.Constraint("DistanceY", 1, 2, -1, 1, Q("5.7254 mm")),
    Sketcher.Constraint("DistanceX", -1, 1, 3, 2, Q("24.594752 mm")),
])
pocket12 = body.newObject("PartDesign::Pocket", "Pocket011")
pocket12.Profile = sketch13
pocket12.Type = "ThroughAll"

# Sketch on YZ plane
sketch14 = body.newObject("Sketcher::SketchObject", "Sketch013")
sketch14.AttachmentSupport = (doc.getObject("YZ_Plane"), [""])
sketch14.MapMode = "FlatFace"
sketch14.addGeometry([
    Part.LineSegment(Vector(-3, 0, 0), Vector(3, 0, 0)),
    Part.LineSegment(Vector(3, 0, 0), Vector(3.5, -2, 0)),
    Part.LineSegment(Vector(3.5, -2, 0), Vector(-3.5, -2, 0)),
    Part.LineSegment(Vector(-3.5, -2, 0), Vector(-3, 0, 0)),
], False)
sketch14.addConstraint([
    Sketcher.Constraint("Coincident", 0, 2, 1, 1),
    Sketcher.Constraint("Coincident", 1, 2, 2, 1),
    Sketcher.Constraint("Coincident", 2, 2, 3, 1),
    Sketcher.Constraint("Coincident", 3, 2, 0, 1),
    Sketcher.Constraint("Horizontal", 0),
    Sketcher.Constraint("Horizontal", 2),
    Sketcher.Constraint("Symmetric", 0, 2, 3, 2, -1, 1),
    Sketcher.Constraint("Equal", 1, 3),
    Sketcher.Constraint("DistanceX", 0, 1, 0, 2, Q("6 mm")),
    Sketcher.Constraint("DistanceX", 2, 2, 2, 1, Q("7 mm")),
    Sketcher.Constraint("DistanceY", 1, 2, -1, 1, Q("2 mm")),
])
sketch14.setExpression("Constraints[8]", "Params.sketch14_width")
sketch14.setExpression("Constraints[9]", "Params.sketch14_width2")
pocket13 = body.newObject("PartDesign::Pocket", "Pocket012")
pocket13.Profile = sketch14
pocket13.Type = "ThroughAll"
pocket13.Reversed = True
doc.recompute()

fillet = body.newObject("PartDesign::Fillet", "Fillet")
fillet.Base = (pocket13, edges_at(pocket13, [(12.5, -3.5, -2)]))
fillet.setExpression("Radius", "Params.fillet_radius")
doc.recompute()

fillet2 = body.newObject("PartDesign::Fillet", "Fillet001")
fillet2.Base = (fillet, edges_at(fillet, [(12.5, 3.5, -2)]))
fillet2.setExpression("Radius", "Params.fillet2_radius")
doc.recompute()

fillet3 = body.newObject("PartDesign::Fillet", "Fillet002")
fillet3.Base = (fillet2, edges_at(fillet2, [(12.5, -3, 0), (12.5, 3, 0)]))
fillet3.setExpression("Radius", "Params.fillet3_radius")

# Sketch on XY plane
sketch15 = body.newObject("Sketcher::SketchObject", "Sketch014")
sketch15.AttachmentSupport = (doc.getObject("XY_Plane"), [""])
sketch15.MapMode = "FlatFace"
sketch15.AttachmentOffset = App.Placement(Vector(0, 0, -3), App.Rotation())
sketch15.addGeometry(Part.Circle(Vector(12.5, 0, 0), Vector(0, 0, 1), 1.5), False)
sketch15.addConstraint([
    Sketcher.Constraint("PointOnObject", 0, 3, -1),
    Sketcher.Constraint("Diameter", 0, Q("3 mm")),
    Sketcher.Constraint("DistanceX", -1, 1, 0, 3, Q("12.5 mm")),
])
sketch15.setExpression("Constraints[1]", "Params.sketch15_diameter")
pad2 = body.newObject("PartDesign::Pad", "Pad001")
pad2.Profile = sketch15
pad2.setExpression("Length", "Params.pad2_length")
pad2.Reversed = True

# Sketch on XY plane
sketch16 = body.newObject("Sketcher::SketchObject", "Sketch015")
sketch16.AttachmentSupport = (doc.getObject("XY_Plane"), [""])
sketch16.MapMode = "FlatFace"
sketch16.AttachmentOffset = App.Placement(Vector(0, 0, -4.5), App.Rotation())
sketch16.addGeometry(Part.Circle(Vector(12.5, 0, 0), Vector(0, 0, 1), 0.5), False)
sketch16.addConstraint([
    Sketcher.Constraint("PointOnObject", 0, 3, -1),
    Sketcher.Constraint("Diameter", 0, Q("1 mm")),
    Sketcher.Constraint("DistanceX", -1, 1, 0, 3, Q("12.5 mm")),
])
sketch16.setExpression("Constraints[1]", "Params.sketch16_diameter")
pocket14 = body.newObject("PartDesign::Pocket", "Pocket013")
pocket14.Profile = sketch16
pocket14.Type = "ThroughAll"
pocket14.Reversed = True

doc.recompute()
